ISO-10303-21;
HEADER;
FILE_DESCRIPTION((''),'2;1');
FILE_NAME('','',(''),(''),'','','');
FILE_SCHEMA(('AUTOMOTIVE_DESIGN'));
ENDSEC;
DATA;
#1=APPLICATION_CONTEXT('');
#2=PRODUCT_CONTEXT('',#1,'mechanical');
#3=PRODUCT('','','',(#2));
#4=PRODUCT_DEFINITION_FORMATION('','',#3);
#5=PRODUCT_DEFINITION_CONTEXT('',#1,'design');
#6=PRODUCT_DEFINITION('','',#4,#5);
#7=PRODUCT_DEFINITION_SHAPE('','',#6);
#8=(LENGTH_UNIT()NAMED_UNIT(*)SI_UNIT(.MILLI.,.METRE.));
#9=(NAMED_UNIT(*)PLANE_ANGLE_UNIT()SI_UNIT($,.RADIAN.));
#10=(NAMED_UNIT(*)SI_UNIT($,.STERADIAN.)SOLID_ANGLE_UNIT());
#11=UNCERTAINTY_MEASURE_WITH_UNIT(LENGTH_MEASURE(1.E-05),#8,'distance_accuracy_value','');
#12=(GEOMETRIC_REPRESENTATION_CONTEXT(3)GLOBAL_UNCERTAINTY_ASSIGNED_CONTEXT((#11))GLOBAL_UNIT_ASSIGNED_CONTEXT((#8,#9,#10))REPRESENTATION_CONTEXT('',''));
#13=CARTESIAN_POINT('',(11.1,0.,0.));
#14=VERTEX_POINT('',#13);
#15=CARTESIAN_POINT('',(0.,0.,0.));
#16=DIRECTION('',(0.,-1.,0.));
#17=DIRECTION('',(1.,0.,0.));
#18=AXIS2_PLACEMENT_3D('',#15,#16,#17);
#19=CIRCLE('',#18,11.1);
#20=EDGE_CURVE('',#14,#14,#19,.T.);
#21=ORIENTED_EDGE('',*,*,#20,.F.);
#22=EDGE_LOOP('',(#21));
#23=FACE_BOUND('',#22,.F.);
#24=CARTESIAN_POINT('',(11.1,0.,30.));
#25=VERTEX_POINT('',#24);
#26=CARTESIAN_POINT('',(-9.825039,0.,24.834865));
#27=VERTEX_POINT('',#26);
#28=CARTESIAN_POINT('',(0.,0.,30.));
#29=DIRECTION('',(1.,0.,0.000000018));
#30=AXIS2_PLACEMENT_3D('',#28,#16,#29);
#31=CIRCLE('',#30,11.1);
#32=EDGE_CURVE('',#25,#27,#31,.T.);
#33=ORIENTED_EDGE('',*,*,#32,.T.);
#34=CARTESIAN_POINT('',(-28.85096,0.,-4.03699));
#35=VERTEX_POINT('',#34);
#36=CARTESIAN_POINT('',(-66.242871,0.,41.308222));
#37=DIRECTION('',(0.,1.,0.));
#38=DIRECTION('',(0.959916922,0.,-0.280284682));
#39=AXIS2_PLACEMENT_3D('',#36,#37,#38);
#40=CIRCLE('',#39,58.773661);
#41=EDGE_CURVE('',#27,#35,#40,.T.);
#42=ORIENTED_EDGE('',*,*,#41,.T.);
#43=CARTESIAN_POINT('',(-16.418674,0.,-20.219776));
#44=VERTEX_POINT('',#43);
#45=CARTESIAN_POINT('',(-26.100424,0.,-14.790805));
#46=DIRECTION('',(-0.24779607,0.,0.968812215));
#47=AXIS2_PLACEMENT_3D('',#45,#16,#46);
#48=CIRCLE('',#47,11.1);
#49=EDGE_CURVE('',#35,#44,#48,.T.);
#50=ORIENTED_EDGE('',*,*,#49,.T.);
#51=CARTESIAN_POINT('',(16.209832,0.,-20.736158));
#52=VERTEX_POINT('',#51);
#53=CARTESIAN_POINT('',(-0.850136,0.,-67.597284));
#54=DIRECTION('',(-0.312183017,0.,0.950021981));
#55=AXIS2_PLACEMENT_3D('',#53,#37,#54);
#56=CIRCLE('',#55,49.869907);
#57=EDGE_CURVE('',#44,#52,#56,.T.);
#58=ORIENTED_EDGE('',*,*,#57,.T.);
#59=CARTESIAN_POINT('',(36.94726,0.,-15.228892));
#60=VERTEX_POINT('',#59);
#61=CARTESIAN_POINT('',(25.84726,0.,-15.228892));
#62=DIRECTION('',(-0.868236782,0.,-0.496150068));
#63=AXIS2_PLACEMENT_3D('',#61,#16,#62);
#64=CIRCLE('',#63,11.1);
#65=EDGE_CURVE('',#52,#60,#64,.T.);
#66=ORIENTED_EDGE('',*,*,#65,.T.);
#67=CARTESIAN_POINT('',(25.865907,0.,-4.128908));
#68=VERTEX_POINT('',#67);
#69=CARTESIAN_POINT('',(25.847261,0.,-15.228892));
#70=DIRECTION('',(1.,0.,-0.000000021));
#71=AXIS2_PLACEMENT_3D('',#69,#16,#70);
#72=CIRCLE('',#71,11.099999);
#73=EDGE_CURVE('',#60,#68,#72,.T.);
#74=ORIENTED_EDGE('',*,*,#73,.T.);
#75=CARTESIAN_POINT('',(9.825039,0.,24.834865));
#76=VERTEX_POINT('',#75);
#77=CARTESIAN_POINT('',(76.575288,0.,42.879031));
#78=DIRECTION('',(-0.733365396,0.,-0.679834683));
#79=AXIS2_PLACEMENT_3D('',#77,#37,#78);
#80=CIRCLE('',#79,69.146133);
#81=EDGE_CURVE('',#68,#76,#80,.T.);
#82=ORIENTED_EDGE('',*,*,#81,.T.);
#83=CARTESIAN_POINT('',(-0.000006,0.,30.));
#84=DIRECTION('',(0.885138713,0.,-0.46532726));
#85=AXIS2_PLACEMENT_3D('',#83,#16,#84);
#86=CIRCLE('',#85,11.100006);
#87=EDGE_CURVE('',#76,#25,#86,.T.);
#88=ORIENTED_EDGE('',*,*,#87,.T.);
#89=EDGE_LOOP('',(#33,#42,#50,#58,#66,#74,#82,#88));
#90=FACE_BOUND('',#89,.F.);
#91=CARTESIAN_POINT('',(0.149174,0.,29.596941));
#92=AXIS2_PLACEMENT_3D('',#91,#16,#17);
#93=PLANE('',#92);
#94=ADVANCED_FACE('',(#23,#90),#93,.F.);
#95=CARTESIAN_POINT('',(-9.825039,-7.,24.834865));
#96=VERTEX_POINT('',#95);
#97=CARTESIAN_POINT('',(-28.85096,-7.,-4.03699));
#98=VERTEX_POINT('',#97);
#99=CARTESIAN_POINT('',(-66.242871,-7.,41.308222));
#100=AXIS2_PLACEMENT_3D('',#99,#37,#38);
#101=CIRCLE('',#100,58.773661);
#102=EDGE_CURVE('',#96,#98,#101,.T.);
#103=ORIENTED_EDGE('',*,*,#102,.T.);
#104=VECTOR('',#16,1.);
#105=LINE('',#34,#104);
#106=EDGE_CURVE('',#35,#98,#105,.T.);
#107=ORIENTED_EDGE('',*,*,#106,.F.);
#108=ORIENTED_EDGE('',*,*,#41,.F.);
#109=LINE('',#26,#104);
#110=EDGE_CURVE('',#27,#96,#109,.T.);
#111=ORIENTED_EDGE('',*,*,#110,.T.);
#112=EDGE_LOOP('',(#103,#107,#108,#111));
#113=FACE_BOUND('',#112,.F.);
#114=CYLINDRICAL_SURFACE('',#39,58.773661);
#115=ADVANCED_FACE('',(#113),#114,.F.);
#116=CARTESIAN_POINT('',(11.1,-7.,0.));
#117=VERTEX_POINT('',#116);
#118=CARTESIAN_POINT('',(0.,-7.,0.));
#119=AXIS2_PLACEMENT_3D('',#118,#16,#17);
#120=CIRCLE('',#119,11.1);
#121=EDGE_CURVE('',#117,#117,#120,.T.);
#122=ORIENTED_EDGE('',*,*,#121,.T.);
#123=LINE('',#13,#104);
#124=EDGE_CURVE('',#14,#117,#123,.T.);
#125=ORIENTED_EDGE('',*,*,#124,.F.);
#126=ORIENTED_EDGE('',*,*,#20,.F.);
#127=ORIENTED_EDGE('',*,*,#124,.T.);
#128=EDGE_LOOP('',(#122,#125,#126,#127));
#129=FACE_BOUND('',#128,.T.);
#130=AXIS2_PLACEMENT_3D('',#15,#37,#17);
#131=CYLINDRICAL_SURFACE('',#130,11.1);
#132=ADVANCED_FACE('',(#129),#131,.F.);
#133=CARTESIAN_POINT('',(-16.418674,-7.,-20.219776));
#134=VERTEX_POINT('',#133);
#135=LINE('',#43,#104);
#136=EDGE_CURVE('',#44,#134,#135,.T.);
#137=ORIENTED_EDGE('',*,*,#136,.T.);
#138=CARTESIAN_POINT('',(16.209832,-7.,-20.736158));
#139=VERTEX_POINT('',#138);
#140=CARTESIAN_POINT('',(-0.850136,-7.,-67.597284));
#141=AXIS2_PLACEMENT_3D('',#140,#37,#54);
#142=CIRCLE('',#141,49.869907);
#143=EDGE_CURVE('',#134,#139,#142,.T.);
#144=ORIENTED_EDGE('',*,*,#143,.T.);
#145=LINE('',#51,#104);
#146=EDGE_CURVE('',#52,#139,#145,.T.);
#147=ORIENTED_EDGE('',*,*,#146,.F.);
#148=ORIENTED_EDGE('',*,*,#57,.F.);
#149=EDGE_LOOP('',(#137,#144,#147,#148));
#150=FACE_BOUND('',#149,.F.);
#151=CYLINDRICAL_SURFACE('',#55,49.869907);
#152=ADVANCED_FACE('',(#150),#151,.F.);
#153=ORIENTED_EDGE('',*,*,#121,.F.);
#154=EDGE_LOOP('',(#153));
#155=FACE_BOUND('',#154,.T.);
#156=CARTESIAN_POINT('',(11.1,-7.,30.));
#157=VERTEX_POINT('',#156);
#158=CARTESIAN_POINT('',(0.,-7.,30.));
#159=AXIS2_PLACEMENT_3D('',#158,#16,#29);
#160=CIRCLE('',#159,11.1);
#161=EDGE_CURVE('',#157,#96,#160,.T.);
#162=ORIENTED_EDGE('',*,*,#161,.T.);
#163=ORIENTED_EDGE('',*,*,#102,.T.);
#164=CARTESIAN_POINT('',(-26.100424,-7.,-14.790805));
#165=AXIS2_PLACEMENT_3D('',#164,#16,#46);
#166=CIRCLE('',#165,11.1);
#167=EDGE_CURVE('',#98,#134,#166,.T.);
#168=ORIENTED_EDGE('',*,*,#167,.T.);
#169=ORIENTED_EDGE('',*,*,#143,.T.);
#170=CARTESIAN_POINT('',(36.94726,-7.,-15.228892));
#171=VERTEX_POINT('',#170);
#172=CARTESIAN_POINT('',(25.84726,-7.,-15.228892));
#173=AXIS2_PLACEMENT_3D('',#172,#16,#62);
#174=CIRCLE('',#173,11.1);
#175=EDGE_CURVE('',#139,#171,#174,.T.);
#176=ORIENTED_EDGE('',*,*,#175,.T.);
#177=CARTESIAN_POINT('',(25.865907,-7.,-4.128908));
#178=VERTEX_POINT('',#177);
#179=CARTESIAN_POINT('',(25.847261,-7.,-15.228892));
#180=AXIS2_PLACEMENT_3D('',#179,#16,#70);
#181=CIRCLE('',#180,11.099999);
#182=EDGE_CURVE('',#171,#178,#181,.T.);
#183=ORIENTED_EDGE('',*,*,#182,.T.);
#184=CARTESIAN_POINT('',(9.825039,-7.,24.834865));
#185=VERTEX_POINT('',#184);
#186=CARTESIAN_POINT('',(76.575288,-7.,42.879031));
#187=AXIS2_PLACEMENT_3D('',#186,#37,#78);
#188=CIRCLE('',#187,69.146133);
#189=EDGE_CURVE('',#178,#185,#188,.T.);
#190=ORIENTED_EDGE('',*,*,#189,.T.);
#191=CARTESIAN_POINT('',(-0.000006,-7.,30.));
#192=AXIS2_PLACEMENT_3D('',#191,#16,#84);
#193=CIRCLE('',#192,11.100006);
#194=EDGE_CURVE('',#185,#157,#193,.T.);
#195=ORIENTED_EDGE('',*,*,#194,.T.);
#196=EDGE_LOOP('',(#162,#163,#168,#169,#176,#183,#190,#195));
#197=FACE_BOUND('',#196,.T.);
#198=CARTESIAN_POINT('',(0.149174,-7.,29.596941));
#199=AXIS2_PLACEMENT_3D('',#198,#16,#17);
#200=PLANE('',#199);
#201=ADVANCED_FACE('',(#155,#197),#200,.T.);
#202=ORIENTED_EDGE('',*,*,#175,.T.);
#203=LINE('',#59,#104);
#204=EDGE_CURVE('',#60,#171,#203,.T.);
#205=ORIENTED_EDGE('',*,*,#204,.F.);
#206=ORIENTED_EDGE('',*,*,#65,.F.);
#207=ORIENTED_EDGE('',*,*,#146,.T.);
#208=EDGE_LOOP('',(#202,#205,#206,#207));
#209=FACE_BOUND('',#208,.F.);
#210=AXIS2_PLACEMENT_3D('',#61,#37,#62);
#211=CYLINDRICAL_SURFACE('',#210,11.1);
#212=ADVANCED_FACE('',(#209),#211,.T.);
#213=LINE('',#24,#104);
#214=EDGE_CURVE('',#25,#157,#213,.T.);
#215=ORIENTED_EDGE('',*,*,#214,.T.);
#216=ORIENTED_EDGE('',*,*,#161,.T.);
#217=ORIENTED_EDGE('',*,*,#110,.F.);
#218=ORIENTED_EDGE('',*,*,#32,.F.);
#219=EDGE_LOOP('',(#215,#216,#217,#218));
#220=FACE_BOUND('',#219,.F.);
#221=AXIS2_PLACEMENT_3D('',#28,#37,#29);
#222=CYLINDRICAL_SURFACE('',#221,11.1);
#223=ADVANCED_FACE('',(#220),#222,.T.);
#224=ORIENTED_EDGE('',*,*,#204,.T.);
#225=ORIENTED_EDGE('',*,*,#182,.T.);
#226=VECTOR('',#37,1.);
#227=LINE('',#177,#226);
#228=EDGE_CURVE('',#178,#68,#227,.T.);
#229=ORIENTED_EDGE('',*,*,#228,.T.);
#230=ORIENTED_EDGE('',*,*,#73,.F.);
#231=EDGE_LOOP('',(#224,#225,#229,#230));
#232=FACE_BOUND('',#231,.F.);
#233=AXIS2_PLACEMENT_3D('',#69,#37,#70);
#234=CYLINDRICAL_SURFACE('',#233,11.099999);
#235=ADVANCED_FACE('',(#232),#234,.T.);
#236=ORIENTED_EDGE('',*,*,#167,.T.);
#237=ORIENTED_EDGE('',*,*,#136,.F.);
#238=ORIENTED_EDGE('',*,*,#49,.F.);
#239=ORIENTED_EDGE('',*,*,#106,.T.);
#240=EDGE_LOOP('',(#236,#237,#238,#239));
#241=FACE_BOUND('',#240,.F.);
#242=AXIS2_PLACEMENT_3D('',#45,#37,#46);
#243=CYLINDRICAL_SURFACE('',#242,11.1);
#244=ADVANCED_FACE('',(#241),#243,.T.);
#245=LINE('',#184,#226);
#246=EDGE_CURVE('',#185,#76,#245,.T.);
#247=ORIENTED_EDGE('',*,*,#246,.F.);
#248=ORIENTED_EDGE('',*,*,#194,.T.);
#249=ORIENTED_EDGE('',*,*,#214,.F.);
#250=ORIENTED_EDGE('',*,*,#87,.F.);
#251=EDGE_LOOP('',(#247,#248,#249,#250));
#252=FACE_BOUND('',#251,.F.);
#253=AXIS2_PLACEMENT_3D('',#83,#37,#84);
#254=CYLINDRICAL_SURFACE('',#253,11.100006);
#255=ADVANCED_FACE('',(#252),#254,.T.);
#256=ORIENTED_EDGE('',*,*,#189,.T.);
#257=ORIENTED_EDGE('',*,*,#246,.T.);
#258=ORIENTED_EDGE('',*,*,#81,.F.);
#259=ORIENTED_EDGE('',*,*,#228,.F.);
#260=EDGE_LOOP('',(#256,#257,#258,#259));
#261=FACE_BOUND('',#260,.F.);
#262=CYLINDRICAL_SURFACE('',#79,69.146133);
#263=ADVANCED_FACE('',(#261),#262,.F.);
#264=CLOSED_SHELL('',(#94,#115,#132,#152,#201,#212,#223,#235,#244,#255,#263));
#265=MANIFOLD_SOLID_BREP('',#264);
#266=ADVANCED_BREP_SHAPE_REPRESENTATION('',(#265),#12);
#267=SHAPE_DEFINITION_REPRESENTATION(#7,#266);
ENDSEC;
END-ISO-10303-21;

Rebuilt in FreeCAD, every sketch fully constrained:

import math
import FreeCAD as App
import Part
import Sketcher
from FreeCAD import Vector
Q = App.Units.Quantity

doc = App.newDocument("Part")
params = doc.addObject("Spreadsheet::Sheet", "Params")
for row, (alias, value) in enumerate([
    ("sketch1_diameter", "22.2 mm"),
    ("pad1_length", "7 mm"),
    ("sketch2_diameter", "22.2 mm"),
    ("pad2_length", "7 mm"),
    ("sketch3_diameter", "22.2 mm"),
    ("pad3_length", "5 mm"),
], start=1):
    params.set(f"A{row}", alias)
    params.set(f"B{row}", "=" + value)
    params.setAlias(f"B{row}", alias)

body = doc.addObject("PartDesign::Body", "Body")

# Sketch on XZ plane
sketch1 = body.newObject("Sketcher::SketchObject", "Sketch")
sketch1.AttachmentSupport = (doc.getObject("XZ_Plane"), [""])
sketch1.MapMode = "FlatFace"
sketch1.addGeometry(Part.ArcOfCircle(Part.Circle(Vector(0, 30, 0), Vector(0, 0, 1), 11), math.radians(-28), math.radians(0)), False)
sketch1.addGeometry(Part.ArcOfCircle(Part.Circle(Vector(0, 30, 0), Vector(0, 0, 1), 11), math.radians(0), math.radians(208)), False)
sketch1.addGeometry(Part.ArcOfCircle(Part.Circle(Vector(-66, 41, 0), Vector(0, 0, 1), 59), math.radians(-50), math.radians(-16)), False)
sketch1.addGeometry(Part.ArcOfCircle(Part.Circle(Vector(-26, -15, 0), Vector(0, 0, 1), 11), math.radians(104), math.radians(331)), False)
sketch1.addGeometry(Part.ArcOfCircle(Part.Circle(Vector(-1, -68, 0), Vector(0, 0, 1), 50), math.radians(70), math.radians(108)), False)
sketch1.addGeometry(Part.ArcOfCircle(Part.Circle(Vector(26, -15, 0), Vector(0, 0, 1), 11), math.radians(-150), math.radians(0)), False)
sketch1.addGeometry(Part.ArcOfCircle(Part.Circle(Vector(26, -15, 0), Vector(0, 0, 1), 11), math.radians(0), math.radians(90)), False)
sketch1.addGeometry(Part.ArcOfCircle(Part.Circle(Vector(77, 43, 0), Vector(0, 0, 1), 69), math.radians(-165), math.radians(-137)), False)
sketch1.addGeometry(Part.Circle(Vector(0, 0, 0), Vector(0, 0, 1), 11), False)
sketch1.addConstraint(Sketcher.Constraint("Tangent", 0, 2, 1, 1))
sketch1.addConstraint(Sketcher.Constraint("Coincident", 1, 2, 2, 2))
sketch1.addConstraint(Sketcher.Constraint("Coincident", 2, 1, 3, 1))
sketch1.addConstraint(Sketcher.Constraint("Coincident", 3, 2, 4, 2))
sketch1.addConstraint(Sketcher.Constraint("Coincident", 4, 1, 5, 1))
sketch1.addConstraint(Sketcher.Constraint("Tangent", 5, 2, 6, 1))
sketch1.addConstraint(Sketcher.Constraint("Coincident", 6, 2, 7, 2))
sketch1.addConstraint(Sketcher.Constraint("Coincident", 7, 1, 0, 1))
sketch1.addConstraint(Sketcher.Constraint("Coincident", 8, 3, -1, 1))
sketch1.addConstraint(Sketcher.Constraint("Equal", 1, 3))
sketch1.addConstraint(Sketcher.Constraint("Equal", 3, 5))
sketch1.addConstraint(Sketcher.Constraint("Equal", 5, 6))
sketch1.addConstraint(Sketcher.Constraint("Equal", 6, 8))
sketch1.addConstraint(Sketcher.Constraint("Symmetric", 1, 2, 7, 1, -2))
sketch1.addConstraint(Sketcher.Constraint("PointOnObject", 1, 3, -2))
sketch1.addConstraint(Sketcher.Constraint("Horizontal", 1, 3, 0, 2))
sketch1.addConstraint(Sketcher.Constraint("Horizontal", 6, 3, 5, 2))
sketch1.addConstraint(Sketcher.Constraint("Diameter", 8, Q("22.2 mm")))
sketch1.addConstraint(Sketcher.Constraint("DistanceY", -1, 1, 0, 3, Q("30 mm")))
sketch1.addConstraint(Sketcher.Constraint("Radius", 2, Q("58.773661 mm")))
sketch1.addConstraint(Sketcher.Constraint("Radius", 4, Q("49.869907 mm")))
sketch1.addConstraint(Sketcher.Constraint("Radius", 7, Q("69.146133 mm")))
sketch1.addConstraint(Sketcher.Constraint("DistanceX", 2, 3, -1, 1, Q("66.242871 mm")))
sketch1.addConstraint(Sketcher.Constraint("DistanceY", -1, 1, 2, 3, Q("41.308222 mm")))
sketch1.addConstraint(Sketcher.Constraint("DistanceX", -1, 1, 5, 3, Q("25.84726 mm")))
sketch1.addConstraint(Sketcher.Constraint("DistanceY", 6, 3, -1, 1, Q("15.228892 mm")))
sketch1.addConstraint(Sketcher.Constraint("DistanceX", -1, 1, 7, 3, Q("76.575288 mm")))
sketch1.addConstraint(Sketcher.Constraint("DistanceX", 2, 1, -1, 1, Q("28.85096 mm")))
sketch1.addConstraint(Sketcher.Constraint("DistanceX", -1, 1, 4, 1, Q("16.209832 mm")))
sketch1.addConstraint(Sketcher.Constraint("DistanceY", 4, 3, 3, 3, Q("52.806478 mm")))
sketch1.addConstraint(Sketcher.Constraint("DistanceX", 4, 3, 0, 3, Q("0.85013 mm")))
sketch1.setExpression("Constraints[17]", "Params.sketch1_diameter")
pad1 = body.newObject("PartDesign::Pad", "Pad")
pad1.Profile = sketch1
pad1.setExpression("Length", "Params.pad1_length")

# Sketch on XZ plane
sketch2 = body.newObject("Sketcher::SketchObject", "Sketch001")
sketch2.AttachmentSupport = (doc.getObject("XZ_Plane"), [""])
sketch2.MapMode = "FlatFace"
sketch2.addGeometry(Part.ArcOfCircle(Part.Circle(Vector(0, 30, 0), Vector(0, 0, 1), 11), math.radians(-28), math.radians(0)), False)
sketch2.addGeometry(Part.ArcOfCircle(Part.Circle(Vector(0, 30, 0), Vector(0, 0, 1), 11), math.radians(0), math.radians(208)), False)
sketch2.addGeometry(Part.ArcOfCircle(Part.Circle(Vector(-66, 41, 0), Vector(0, 0, 1), 59), math.radians(-50), math.radians(-16)), False)
sketch2.addGeometry(Part.ArcOfCircle(Part.Circle(Vector(-26, -15, 0), Vector(0, 0, 1), 11), math.radians(104), math.radians(331)), False)
sketch2.addGeometry(Part.ArcOfCircle(Part.Circle(Vector(-1, -68, 0), Vector(0, 0, 1), 50), math.radians(70), math.radians(108)), False)
sketch2.addGeometry(Part.ArcOfCircle(Part.Circle(Vector(26, -15, 0), Vector(0, 0, 1), 11), math.radians(-150), math.radians(0)), False)
sketch2.addGeometry(Part.ArcOfCircle(Part.Circle(Vector(26, -15, 0), Vector(0, 0, 1), 11), math.radians(0), math.radians(90)), False)
sketch2.addGeometry(Part.ArcOfCircle(Part.Circle(Vector(77, 43, 0), Vector(0, 0, 1), 69), math.radians(-165), math.radians(-137)), False)
sketch2.addGeometry(Part.Circle(Vector(0, 0, 0), Vector(0, 0, 1), 11), False)
sketch2.addConstraint(Sketcher.Constraint("Tangent", 0, 2, 1, 1))
sketch2.addConstraint(Sketcher.Constraint("Coincident", 1, 2, 2, 2))
sketch2.addConstraint(Sketcher.Constraint("Coincident", 2, 1, 3, 1))
sketch2.addConstraint(Sketcher.Constraint("Coincident", 3, 2, 4, 2))
sketch2.addConstraint(Sketcher.Constraint("Coincident", 4, 1, 5, 1))
sketch2.addConstraint(Sketcher.Constraint("Tangent", 5, 2, 6, 1))
sketch2.addConstraint(Sketcher.Constraint("Coincident", 6, 2, 7, 2))
sketch2.addConstraint(Sketcher.Constraint("Coincident", 7, 1, 0, 1))
sketch2.addConstraint(Sketcher.Constraint("Coincident", 8, 3, -1, 1))
sketch2.addConstraint(Sketcher.Constraint("Equal", 1, 3))
sketch2.addConstraint(Sketcher.Constraint("Equal", 3, 5))
sketch2.addConstraint(Sketcher.Constraint("Equal", 5, 6))
sketch2.addConstraint(Sketcher.Constraint("Equal", 6, 8))
sketch2.addConstraint(Sketcher.Constraint("Symmetric", 1, 2, 7, 1, -2))
sketch2.addConstraint(Sketcher.Constraint("PointOnObject", 1, 3, -2))
sketch2.addConstraint(Sketcher.Constraint("Horizontal", 1, 3, 0, 2))
sketch2.addConstraint(Sketcher.Constraint("Horizontal", 6, 3, 5, 2))
sketch2.addConstraint(Sketcher.Constraint("Diameter", 8, Q("22.2 mm")))
sketch2.addConstraint(Sketcher.Constraint("DistanceY", -1, 1, 0, 3, Q("30 mm")))
sketch2.addConstraint(Sketcher.Constraint("Radius", 2, Q("58.773661 mm")))
sketch2.addConstraint(Sketcher.Constraint("Radius", 4, Q("49.869907 mm")))
sketch2.addConstraint(Sketcher.Constraint("Radius", 7, Q("69.146133 mm")))
sketch2.addConstraint(Sketcher.Constraint("DistanceX", 2, 3, -1, 1, Q("66.242871 mm")))
sketch2.addConstraint(Sketcher.Constraint("DistanceY", -1, 1, 2, 3, Q("41.308222 mm")))
sketch2.addConstraint(Sketcher.Constraint("DistanceX", -1, 1, 5, 3, Q("25.84726 mm")))
sketch2.addConstraint(Sketcher.Constraint("DistanceY", 6, 3, -1, 1, Q("15.228892 mm")))
sketch2.addConstraint(Sketcher.Constraint("DistanceX", -1, 1, 7, 3, Q("76.575288 mm")))
sketch2.addConstraint(Sketcher.Constraint("DistanceX", 2, 1, -1, 1, Q("28.85096 mm")))
sketch2.addConstraint(Sketcher.Constraint("DistanceX", -1, 1, 4, 1, Q("16.209832 mm")))
sketch2.addConstraint(Sketcher.Constraint("DistanceY", 4, 3, 3, 3, Q("52.806478 mm")))
sketch2.addConstraint(Sketcher.Constraint("DistanceX", 4, 3, 0, 3, Q("0.85013 mm")))
sketch2.setExpression("Constraints[17]", "Params.sketch2_diameter")
pad2 = body.newObject("PartDesign::Pad", "Pad001")
pad2.Profile = sketch2
pad2.setExpression("Length", "Params.pad2_length")

# Sketch on XZ plane
sketch3 = body.newObject("Sketcher::SketchObject", "Sketch002")
sketch3.AttachmentSupport = (doc.getObject("XZ_Plane"), [""])
sketch3.MapMode = "FlatFace"
sketch3.addGeometry(Part.ArcOfCircle(Part.Circle(Vector(0, 30, 0), Vector(0, 0, 1), 11), math.radians(-28), math.radians(0)), False)
sketch3.addGeometry(Part.ArcOfCircle(Part.Circle(Vector(0, 30, 0), Vector(0, 0, 1), 11), math.radians(0), math.radians(208)), False)
sketch3.addGeometry(Part.ArcOfCircle(Part.Circle(Vector(-66, 41, 0), Vector(0, 0, 1), 59), math.radians(-50), math.radians(-16)), False)
sketch3.addGeometry(Part.ArcOfCircle(Part.Circle(Vector(-26, -15, 0), Vector(0, 0, 1), 11), math.radians(104), math.radians(331)), False)
sketch3.addGeometry(Part.ArcOfCircle(Part.Circle(Vector(-1, -68, 0), Vector(0, 0, 1), 50), math.radians(70), math.radians(108)), False)
sketch3.addGeometry(Part.ArcOfCircle(Part.Circle(Vector(26, -15, 0), Vector(0, 0, 1), 11), math.radians(-150), math.radians(0)), False)
sketch3.addGeometry(Part.ArcOfCircle(Part.Circle(Vector(26, -15, 0), Vector(0, 0, 1), 11), math.radians(0), math.radians(90)), False)
sketch3.addGeometry(Part.ArcOfCircle(Part.Circle(Vector(77, 43, 0), Vector(0, 0, 1), 69), math.radians(-165), math.radians(-137)), False)
sketch3.addGeometry(Part.Circle(Vector(0, 0, 0), Vector(0, 0, 1), 11), False)
sketch3.addConstraint(Sketcher.Constraint("Tangent", 0, 2, 1, 1))
sketch3.addConstraint(Sketcher.Constraint("Coincident", 1, 2, 2, 2))
sketch3.addConstraint(Sketcher.Constraint("Coincident", 2, 1, 3, 1))
sketch3.addConstraint(Sketcher.Constraint("Coincident", 3, 2, 4, 2))
sketch3.addConstraint(Sketcher.Constraint("Coincident", 4, 1, 5, 1))
sketch3.addConstraint(Sketcher.Constraint("Tangent", 5, 2, 6, 1))
sketch3.addConstraint(Sketcher.Constraint("Coincident", 6, 2, 7, 2))
sketch3.addConstraint(Sketcher.Constraint("Coincident", 7, 1, 0, 1))
sketch3.addConstraint(Sketcher.Constraint("Coincident", 8, 3, -1, 1))
sketch3.addConstraint(Sketcher.Constraint("Equal", 1, 3))
sketch3.addConstraint(Sketcher.Constraint("Equal", 3, 5))
sketch3.addConstraint(Sketcher.Constraint("Equal", 5, 6))
sketch3.addConstraint(Sketcher.Constraint("Equal", 6, 8))
sketch3.addConstraint(Sketcher.Constraint("Symmetric", 1, 2, 7, 1, -2))
sketch3.addConstraint(Sketcher.Constraint("PointOnObject", 1, 3, -2))
sketch3.addConstraint(Sketcher.Constraint("Horizontal", 1, 3, 0, 2))
sketch3.addConstraint(Sketcher.Constraint("Horizontal", 6, 3, 5, 2))
sketch3.addConstraint(Sketcher.Constraint("Diameter", 8, Q("22.2 mm")))
sketch3.addConstraint(Sketcher.Constraint("DistanceY", -1, 1, 0, 3, Q("30 mm")))
sketch3.addConstraint(Sketcher.Constraint("Radius", 2, Q("58.773661 mm")))
sketch3.addConstraint(Sketcher.Constraint("Radius", 4, Q("49.869907 mm")))
sketch3.addConstraint(Sketcher.Constraint("Radius", 7, Q("69.146133 mm")))
sketch3.addConstraint(Sketcher.Constraint("DistanceX", 2, 3, -1, 1, Q("66.242871 mm")))
sketch3.addConstraint(Sketcher.Constraint("DistanceY", -1, 1, 2, 3, Q("41.308222 mm")))
sketch3.addConstraint(Sketcher.Constraint("DistanceX", -1, 1, 5, 3, Q("25.84726 mm")))
sketch3.addConstraint(Sketcher.Constraint("DistanceY", 6, 3, -1, 1, Q("15.228892 mm")))
sketch3.addConstraint(Sketcher.Constraint("DistanceX", -1, 1, 7, 3, Q("76.575288 mm")))
sketch3.addConstraint(Sketcher.Constraint("DistanceX", 2, 1, -1, 1, Q("28.85096 mm")))
sketch3.addConstraint(Sketcher.Constraint("DistanceX", -1, 1, 4, 1, Q("16.209832 mm")))
sketch3.addConstraint(Sketcher.Constraint("DistanceY", 4, 3, 3, 3, Q("52.806478 mm")))
sketch3.addConstraint(Sketcher.Constraint("DistanceX", 4, 3, 0, 3, Q("0.85013 mm")))
sketch3.setExpression("Constraints[17]", "Params.sketch3_diameter")
pad3 = body.newObject("PartDesign::Pad", "Pad002")
pad3.Profile = sketch3
pad3.setExpression("Length", "Params.pad3_length")

doc.recompute()
